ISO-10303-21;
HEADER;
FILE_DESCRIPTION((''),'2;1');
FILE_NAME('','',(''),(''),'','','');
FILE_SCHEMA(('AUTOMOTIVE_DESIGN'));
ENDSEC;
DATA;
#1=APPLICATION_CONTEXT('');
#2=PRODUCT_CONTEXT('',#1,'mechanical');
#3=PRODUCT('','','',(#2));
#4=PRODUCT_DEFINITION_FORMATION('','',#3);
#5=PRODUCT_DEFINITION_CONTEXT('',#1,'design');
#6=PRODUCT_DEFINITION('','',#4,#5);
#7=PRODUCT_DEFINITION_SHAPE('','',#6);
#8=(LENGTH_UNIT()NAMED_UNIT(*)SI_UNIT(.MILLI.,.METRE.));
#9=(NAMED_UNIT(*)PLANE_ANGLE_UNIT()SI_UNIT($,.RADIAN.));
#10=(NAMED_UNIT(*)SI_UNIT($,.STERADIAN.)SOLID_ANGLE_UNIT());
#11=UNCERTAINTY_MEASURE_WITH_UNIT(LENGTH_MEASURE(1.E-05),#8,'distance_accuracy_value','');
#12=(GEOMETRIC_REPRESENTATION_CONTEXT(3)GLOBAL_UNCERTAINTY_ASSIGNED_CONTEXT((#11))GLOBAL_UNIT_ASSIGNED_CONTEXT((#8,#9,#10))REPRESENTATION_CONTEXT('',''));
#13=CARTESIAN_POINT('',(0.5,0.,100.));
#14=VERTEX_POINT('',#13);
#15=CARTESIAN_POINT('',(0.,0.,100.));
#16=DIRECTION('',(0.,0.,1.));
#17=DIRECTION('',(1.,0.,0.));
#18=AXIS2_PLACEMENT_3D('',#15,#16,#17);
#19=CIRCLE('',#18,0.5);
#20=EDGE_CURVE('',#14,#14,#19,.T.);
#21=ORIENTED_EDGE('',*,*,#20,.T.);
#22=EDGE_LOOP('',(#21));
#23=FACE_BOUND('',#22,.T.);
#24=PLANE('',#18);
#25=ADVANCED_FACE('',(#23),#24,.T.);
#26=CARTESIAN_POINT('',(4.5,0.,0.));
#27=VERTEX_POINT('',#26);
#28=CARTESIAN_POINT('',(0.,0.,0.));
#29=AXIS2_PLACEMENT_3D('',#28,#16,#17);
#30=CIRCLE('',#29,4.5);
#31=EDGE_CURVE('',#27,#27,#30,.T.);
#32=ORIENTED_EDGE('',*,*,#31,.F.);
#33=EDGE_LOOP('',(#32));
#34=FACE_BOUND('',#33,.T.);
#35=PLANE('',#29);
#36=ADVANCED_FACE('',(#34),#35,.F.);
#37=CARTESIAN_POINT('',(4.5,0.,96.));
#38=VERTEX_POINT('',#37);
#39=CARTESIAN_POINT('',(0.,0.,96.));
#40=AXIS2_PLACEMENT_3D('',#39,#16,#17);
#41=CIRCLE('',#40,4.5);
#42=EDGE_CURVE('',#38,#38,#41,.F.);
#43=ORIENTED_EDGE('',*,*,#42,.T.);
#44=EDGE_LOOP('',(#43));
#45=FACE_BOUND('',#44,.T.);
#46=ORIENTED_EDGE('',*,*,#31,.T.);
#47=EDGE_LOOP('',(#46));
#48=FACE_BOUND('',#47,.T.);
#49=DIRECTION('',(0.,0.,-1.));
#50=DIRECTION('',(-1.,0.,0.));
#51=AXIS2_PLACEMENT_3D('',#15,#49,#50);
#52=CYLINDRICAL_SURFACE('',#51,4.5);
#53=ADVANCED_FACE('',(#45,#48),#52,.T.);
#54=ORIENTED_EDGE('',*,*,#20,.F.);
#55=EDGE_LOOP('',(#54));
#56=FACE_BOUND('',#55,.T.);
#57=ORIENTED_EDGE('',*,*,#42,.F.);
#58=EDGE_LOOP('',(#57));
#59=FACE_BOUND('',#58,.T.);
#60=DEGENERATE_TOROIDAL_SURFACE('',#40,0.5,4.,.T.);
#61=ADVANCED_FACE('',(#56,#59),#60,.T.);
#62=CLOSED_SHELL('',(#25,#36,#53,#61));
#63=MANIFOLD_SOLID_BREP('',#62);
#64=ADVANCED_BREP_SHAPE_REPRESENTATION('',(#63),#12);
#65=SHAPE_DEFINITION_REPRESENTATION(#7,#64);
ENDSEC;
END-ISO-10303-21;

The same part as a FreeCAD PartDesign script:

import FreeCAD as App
import Part
import Sketcher

V = App.Vector


def edges_at(feature, points):
    """Names of the edges that pass closest to the given points."""
    edges = feature.Shape.Edges
    near = lambda p: min(range(len(edges)), key=lambda i: edges[i].distToShape(Part.Vertex(*p))[0])
    return sorted({f"Edge{near(p) + 1}" for p in points})

doc = App.newDocument("Part")
body = doc.addObject("PartDesign::Body", "Body")

# Sketch on XY plane
sketch1 = body.newObject("Sketcher::SketchObject", "Sketch")
sketch1.AttachmentSupport = (doc.getObject("XY_Plane"), [""])
sketch1.MapMode = "FlatFace"
sketch1.addGeometry(Part.Circle(V(0, 0, 0), V(0, 0, 1), 4.5), False)
sketch1.addConstraint([
    Sketcher.Constraint("Coincident", 0, 3, -1, 1),
    Sketcher.Constraint("Diameter", 0, 9.0),
])
pad1 = body.newObject("PartDesign::Pad", "Pad")
pad1.Profile = sketch1
pad1.Length = 100
doc.recompute()

fillet = body.newObject("PartDesign::Fillet", "Fillet")
fillet.Base = (pad1, edges_at(pad1, [(-4.5, 0, 100)]))
fillet.Radius = 4

doc.recompute()
